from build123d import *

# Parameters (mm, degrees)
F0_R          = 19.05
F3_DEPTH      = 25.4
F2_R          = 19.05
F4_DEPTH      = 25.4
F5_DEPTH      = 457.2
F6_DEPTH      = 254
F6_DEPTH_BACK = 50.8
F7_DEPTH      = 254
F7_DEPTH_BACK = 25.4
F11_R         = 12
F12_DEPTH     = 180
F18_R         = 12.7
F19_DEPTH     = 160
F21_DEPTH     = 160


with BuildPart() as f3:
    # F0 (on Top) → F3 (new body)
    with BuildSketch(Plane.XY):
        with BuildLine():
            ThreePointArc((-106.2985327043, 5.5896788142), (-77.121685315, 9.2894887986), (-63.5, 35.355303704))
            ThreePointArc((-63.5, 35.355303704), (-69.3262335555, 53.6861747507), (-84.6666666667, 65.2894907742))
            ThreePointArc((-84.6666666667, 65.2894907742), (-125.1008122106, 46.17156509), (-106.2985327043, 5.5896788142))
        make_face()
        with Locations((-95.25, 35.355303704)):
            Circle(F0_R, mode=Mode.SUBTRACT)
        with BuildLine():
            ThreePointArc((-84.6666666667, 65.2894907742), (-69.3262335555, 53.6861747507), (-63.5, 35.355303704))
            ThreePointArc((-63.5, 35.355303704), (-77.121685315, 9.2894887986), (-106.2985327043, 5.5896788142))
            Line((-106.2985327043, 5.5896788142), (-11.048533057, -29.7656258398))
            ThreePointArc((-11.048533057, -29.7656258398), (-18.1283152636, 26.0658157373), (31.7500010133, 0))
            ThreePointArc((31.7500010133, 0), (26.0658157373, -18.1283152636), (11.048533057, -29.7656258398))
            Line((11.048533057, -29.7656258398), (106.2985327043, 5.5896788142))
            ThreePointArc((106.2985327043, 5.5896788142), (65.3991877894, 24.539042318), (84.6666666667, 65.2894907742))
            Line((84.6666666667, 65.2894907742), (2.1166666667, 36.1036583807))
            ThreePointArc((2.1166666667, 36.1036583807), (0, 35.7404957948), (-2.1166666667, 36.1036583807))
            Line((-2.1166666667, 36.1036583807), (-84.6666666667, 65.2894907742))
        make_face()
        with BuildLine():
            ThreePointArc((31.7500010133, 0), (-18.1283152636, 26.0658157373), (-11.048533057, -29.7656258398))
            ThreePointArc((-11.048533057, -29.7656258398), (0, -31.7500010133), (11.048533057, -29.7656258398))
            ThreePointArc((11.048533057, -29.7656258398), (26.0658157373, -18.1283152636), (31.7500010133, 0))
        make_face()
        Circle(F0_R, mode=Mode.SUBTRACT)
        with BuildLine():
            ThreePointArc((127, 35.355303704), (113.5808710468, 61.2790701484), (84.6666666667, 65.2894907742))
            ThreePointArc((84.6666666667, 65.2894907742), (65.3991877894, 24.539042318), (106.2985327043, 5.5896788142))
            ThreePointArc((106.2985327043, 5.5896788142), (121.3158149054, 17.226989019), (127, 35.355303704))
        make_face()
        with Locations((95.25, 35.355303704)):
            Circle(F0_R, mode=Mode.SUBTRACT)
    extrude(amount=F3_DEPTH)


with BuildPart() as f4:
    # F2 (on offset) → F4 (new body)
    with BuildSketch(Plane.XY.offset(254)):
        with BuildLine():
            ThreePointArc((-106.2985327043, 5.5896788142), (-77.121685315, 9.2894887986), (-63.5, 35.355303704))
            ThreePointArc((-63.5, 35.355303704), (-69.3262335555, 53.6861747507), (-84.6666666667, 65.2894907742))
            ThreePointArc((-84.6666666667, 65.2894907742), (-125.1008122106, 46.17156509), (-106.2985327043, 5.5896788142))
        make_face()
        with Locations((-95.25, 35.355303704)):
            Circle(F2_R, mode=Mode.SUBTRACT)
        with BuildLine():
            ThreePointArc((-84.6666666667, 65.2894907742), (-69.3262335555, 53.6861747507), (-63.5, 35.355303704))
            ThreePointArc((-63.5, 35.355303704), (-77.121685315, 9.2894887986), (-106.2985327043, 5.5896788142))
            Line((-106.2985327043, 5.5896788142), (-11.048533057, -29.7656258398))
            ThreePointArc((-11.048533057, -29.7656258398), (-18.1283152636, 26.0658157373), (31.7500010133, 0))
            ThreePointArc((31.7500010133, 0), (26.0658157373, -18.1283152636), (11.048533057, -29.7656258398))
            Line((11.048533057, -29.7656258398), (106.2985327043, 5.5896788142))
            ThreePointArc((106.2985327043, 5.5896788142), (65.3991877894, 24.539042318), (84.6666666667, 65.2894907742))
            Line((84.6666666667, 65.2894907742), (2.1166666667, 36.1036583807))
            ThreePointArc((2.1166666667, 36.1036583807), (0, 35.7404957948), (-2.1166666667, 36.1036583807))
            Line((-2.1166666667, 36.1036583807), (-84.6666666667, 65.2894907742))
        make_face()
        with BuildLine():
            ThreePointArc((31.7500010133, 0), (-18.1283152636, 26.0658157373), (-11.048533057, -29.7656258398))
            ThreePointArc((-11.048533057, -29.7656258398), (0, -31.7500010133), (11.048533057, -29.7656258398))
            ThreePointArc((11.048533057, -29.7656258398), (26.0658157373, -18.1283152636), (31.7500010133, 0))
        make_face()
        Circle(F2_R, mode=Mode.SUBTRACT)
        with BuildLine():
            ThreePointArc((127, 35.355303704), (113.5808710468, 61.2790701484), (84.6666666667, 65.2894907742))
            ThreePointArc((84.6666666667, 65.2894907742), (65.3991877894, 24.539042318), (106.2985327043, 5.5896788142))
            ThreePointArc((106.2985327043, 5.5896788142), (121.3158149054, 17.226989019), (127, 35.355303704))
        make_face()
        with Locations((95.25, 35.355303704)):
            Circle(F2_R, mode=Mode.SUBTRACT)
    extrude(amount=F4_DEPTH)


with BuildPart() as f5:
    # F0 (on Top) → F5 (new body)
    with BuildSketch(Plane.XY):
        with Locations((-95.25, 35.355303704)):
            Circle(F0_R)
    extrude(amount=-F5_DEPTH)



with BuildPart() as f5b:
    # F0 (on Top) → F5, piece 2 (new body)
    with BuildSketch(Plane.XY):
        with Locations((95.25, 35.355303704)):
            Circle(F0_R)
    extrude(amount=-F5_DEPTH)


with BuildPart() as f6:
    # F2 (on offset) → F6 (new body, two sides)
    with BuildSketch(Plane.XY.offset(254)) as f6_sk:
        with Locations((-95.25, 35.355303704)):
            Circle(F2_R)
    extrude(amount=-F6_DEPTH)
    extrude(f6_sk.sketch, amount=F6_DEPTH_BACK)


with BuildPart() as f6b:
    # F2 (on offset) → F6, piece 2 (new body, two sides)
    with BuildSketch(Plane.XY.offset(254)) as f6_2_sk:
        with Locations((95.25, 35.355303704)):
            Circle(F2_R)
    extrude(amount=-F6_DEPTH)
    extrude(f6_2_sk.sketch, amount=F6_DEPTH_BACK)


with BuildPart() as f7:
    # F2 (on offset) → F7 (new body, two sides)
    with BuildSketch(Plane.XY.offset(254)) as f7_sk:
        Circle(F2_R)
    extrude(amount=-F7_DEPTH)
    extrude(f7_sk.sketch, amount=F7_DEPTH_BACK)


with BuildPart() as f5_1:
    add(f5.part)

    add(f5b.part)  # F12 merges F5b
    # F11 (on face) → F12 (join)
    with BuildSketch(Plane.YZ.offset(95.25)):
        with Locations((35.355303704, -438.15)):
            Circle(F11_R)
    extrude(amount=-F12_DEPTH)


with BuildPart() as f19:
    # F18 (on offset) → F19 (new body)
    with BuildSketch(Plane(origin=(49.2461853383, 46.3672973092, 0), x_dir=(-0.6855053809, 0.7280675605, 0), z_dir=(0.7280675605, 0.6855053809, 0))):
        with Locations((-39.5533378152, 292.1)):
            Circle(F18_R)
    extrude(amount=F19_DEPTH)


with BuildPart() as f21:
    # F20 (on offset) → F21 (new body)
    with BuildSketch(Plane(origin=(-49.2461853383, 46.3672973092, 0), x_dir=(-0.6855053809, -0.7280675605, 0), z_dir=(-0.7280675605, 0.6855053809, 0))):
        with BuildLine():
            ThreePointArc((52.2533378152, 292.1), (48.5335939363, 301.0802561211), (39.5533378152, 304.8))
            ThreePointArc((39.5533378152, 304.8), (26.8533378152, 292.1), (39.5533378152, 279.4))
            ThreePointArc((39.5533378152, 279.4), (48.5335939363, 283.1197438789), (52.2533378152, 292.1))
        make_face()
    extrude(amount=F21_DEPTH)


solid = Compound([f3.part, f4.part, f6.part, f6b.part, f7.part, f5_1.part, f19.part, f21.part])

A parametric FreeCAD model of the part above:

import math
import FreeCAD as App
import Part
import Sketcher
Q = App.Units.Quantity

doc = App.newDocument("Part")
body = doc.addObject("PartDesign::Body", "Body")

# Sketch on XY plane
sketch1 = body.newObject("Sketcher::SketchObject", "Sketch")
sketch1.AttachmentSupport = (doc.getObject("XY_Plane"), [""])
sketch1.MapMode = "FlatFace"
sketch1.addGeometry([
    Part.ArcOfCircle(Part.Circle(App.Vector(-95.2, 35.4, 0), App.Vector(0, 0, 1), 31.8), math.radians(71), math.radians(250)),  # 0
    Part.LineSegment(App.Vector(-106.3, 5.6, 0), App.Vector(-11, -29.8, 0)),  # 1
    Part.ArcOfCircle(Part.Circle(App.Vector(0, 0, 0), App.Vector(0, 0, 1), 31.8), math.radians(-110), math.radians(-70)),  # 2
    Part.LineSegment(App.Vector(11, -29.8, 0), App.Vector(106.3, 5.6, 0)),  # 3
    Part.ArcOfCircle(Part.Circle(App.Vector(95.2, 35.4, 0), App.Vector(0, 0, 1), 31.8), math.radians(-70), math.radians(0)),  # 4
    Part.ArcOfCircle(Part.Circle(App.Vector(95.2, 35.4, 0), App.Vector(0, 0, 1), 31.8), math.radians(0), math.radians(109)),  # 5
    Part.LineSegment(App.Vector(84.7, 65.3, 0), App.Vector(2.1, 36.1, 0)),  # 6
    Part.ArcOfCircle(Part.Circle(App.Vector(0, 42.1, 0), App.Vector(0, 0, 1), 6.4), math.radians(-109), math.radians(-71)),  # 7
    Part.LineSegment(App.Vector(-2.1, 36.1, 0), App.Vector(-84.7, 65.3, 0)),  # 8
    Part.Circle(App.Vector(0, 0, 0), App.Vector(0, 0, 1), 19.1),  # 9
    Part.Circle(App.Vector(-95.2, 35.4, 0), App.Vector(0, 0, 1), 19.1),  # 10
    Part.Circle(App.Vector(95.2, 35.4, 0), App.Vector(0, 0, 1), 19.1),  # 11
], False)
sketch1.addConstraint([
    Sketcher.Constraint("Tangent", 0, 2, 1, 1),
    Sketcher.Constraint("Tangent", 1, 2, 2, 1),
    Sketcher.Constraint("Tangent", 2, 2, 3, 1),
    Sketcher.Constraint("Tangent", 3, 2, 4, 1),
    Sketcher.Constraint("Tangent", 4, 2, 5, 1),
    Sketcher.Constraint("Tangent", 5, 2, 6, 1),
    Sketcher.Constraint("Tangent", 6, 2, 7, 2),
    Sketcher.Constraint("Tangent", 7, 1, 8, 1),
    Sketcher.Constraint("Tangent", 8, 2, 0, 1),
    Sketcher.Constraint("Coincident", 2, 3, -1, 1),
    Sketcher.Constraint("Coincident", 9, 3, -1, 1),
    Sketcher.Constraint("Coincident", 10, 3, 0, 3),
    Sketcher.Constraint("Coincident", 11, 3, 4, 3),
    Sketcher.Constraint("Equal", 0, 2),
    Sketcher.Constraint("Equal", 2, 4),
    Sketcher.Constraint("Equal", 4, 5),
    Sketcher.Constraint("Equal", 9, 10),
    Sketcher.Constraint("Equal", 10, 11),
    Sketcher.Constraint("Symmetric", 0, 3, 4, 3, -2),
    Sketcher.Constraint("PointOnObject", 7, 3, -2),
    Sketcher.Constraint("Horizontal", 11, 3, 4, 2),
    Sketcher.Constraint("Diameter", 9, Q("1.5 in")),
    Sketcher.Constraint("Radius", 0, Q("1.25 in")),
    Sketcher.Constraint("Radius", 7, Q("0.25 in")),
    Sketcher.Constraint("Distance", 1, Q("4 in")),
    Sketcher.Constraint("DistanceX", -1, 1, 4, 2, Q("5 in")),
    Sketcher.Constraint("DistanceX", 8, 2, 7, 1, Q("3.25 in")),
])
pad1 = body.newObject("PartDesign::Pad", "Pad")
pad1.Profile = sketch1
pad1.Length = Q("1 in")
body2 = doc.addObject("PartDesign::Body", "Body001")

# Sketch on XY plane
sketch2 = body2.newObject("Sketcher::SketchObject", "Sketch001")
sketch2.AttachmentSupport = (doc.getObject("XY_Plane001"), [""])
sketch2.MapMode = "FlatFace"
sketch2.AttachmentOffset = App.Placement(App.Vector(0, 0, 10 * 25.4), App.Rotation())
sketch2.addGeometry([
    Part.ArcOfCircle(Part.Circle(App.Vector(-95.2, 35.4, 0), App.Vector(0, 0, 1), 31.8), math.radians(71), math.radians(250)),  # 0
    Part.LineSegment(App.Vector(-106.3, 5.6, 0), App.Vector(-11, -29.8, 0)),  # 1
    Part.ArcOfCircle(Part.Circle(App.Vector(0, 0, 0), App.Vector(0, 0, 1), 31.8), math.radians(-110), math.radians(-70)),  # 2
    Part.LineSegment(App.Vector(11, -29.8, 0), App.Vector(106.3, 5.6, 0)),  # 3
    Part.ArcOfCircle(Part.Circle(App.Vector(95.2, 35.4, 0), App.Vector(0, 0, 1), 31.8), math.radians(-70), math.radians(0)),  # 4
    Part.ArcOfCircle(Part.Circle(App.Vector(95.2, 35.4, 0), App.Vector(0, 0, 1), 31.8), math.radians(0), math.radians(109)),  # 5
    Part.LineSegment(App.Vector(84.7, 65.3, 0), App.Vector(2.1, 36.1, 0)),  # 6
    Part.ArcOfCircle(Part.Circle(App.Vector(0, 42.1, 0), App.Vector(0, 0, 1), 6.4), math.radians(-109), math.radians(-71)),  # 7
    Part.LineSegment(App.Vector(-2.1, 36.1, 0), App.Vector(-84.7, 65.3, 0)),  # 8
    Part.Circle(App.Vector(0, 0, 0), App.Vector(0, 0, 1), 19.1),  # 9
    Part.Circle(App.Vector(-95.2, 35.4, 0), App.Vector(0, 0, 1), 19.1),  # 10
    Part.Circle(App.Vector(95.2, 35.4, 0), App.Vector(0, 0, 1), 19.1),  # 11
], False)
sketch2.addConstraint([
    Sketcher.Constraint("Tangent", 0, 2, 1, 1),
    Sketcher.Constraint("Tangent", 1, 2, 2, 1),
    Sketcher.Constraint("Tangent", 2, 2, 3, 1),
    Sketcher.Constraint("Tangent", 3, 2, 4, 1),
    Sketcher.Constraint("Tangent", 4, 2, 5, 1),
    Sketcher.Constraint("Tangent", 5, 2, 6, 1),
    Sketcher.Constraint("Tangent", 6, 2, 7, 2),
    Sketcher.Constraint("Tangent", 7, 1, 8, 1),
    Sketcher.Constraint("Tangent", 8, 2, 0, 1),
    Sketcher.Constraint("Coincident", 2, 3, -1, 1),
    Sketcher.Constraint("Coincident", 9, 3, -1, 1),
    Sketcher.Constraint("Coincident", 10, 3, 0, 3),
    Sketcher.Constraint("Coincident", 11, 3, 4, 3),
    Sketcher.Constraint("Equal", 0, 2),
    Sketcher.Constraint("Equal", 2, 4),
    Sketcher.Constraint("Equal", 4, 5),
    Sketcher.Constraint("Equal", 9, 10),
    Sketcher.Constraint("Equal", 10, 11),
    Sketcher.Constraint("Symmetric", 0, 3, 4, 3, -2),
    Sketcher.Constraint("PointOnObject", 7, 3, -2),
    Sketcher.Constraint("Horizontal", 11, 3, 4, 2),
    Sketcher.Constraint("Diameter", 9, Q("1.5 in")),
    Sketcher.Constraint("Radius", 0, Q("1.25 in")),
    Sketcher.Constraint("Radius", 7, Q("0.25 in")),
    Sketcher.Constraint("Distance", 1, Q("4 in")),
    Sketcher.Constraint("DistanceX", -1, 1, 4, 2, Q("5 in")),
    Sketcher.Constraint("DistanceX", 8, 2, 7, 1, Q("3.25 in")),
])
pad2 = body2.newObject("PartDesign::Pad", "Pad001")
pad2.Profile = sketch2
pad2.Length = Q("1 in")
body3 = doc.addObject("PartDesign::Body", "Body002")

# Sketch on XY plane
sketch3 = body3.newObject("Sketcher::SketchObject", "Sketch002")
sketch3.AttachmentSupport = (doc.getObject("XY_Plane002"), [""])
sketch3.MapMode = "FlatFace"
sketch3.addGeometry(Part.Circle(App.Vector(-95, 35, 0), App.Vector(0, 0, 1), 19), False)
sketch3.addConstraint([
    Sketcher.Constraint("Diameter", 0, Q("1.5 in")),
    Sketcher.Constraint("DistanceX", 0, 3, -1, 1, Q("3.75 in")),
    Sketcher.Constraint("DistanceY", -1, 1, 0, 3, Q("35.355304 mm")),
])
pad3 = body3.newObject("PartDesign::Pad", "Pad002")
pad3.Profile = sketch3
pad3.Length = Q("18 in")
pad3.Reversed = True
body4 = doc.addObject("PartDesign::Body", "Body003")

# Sketch on XY plane
sketch4 = body4.newObject("Sketcher::SketchObject", "Sketch003")
sketch4.AttachmentSupport = (doc.getObject("XY_Plane003"), [""])
sketch4.MapMode = "FlatFace"
sketch4.addGeometry(Part.Circle(App.Vector(95, 35, 0), App.Vector(0, 0, 1), 19), False)
sketch4.addConstraint([
    Sketcher.Constraint("Diameter", 0, Q("1.5 in")),
    Sketcher.Constraint("DistanceX", -1, 1, 0, 3, Q("3.75 in")),
    Sketcher.Constraint("DistanceY", -1, 1, 0, 3, Q("35.355304 mm")),
])
pad4 = body4.newObject("PartDesign::Pad", "Pad003")
pad4.Profile = sketch4
pad4.Length = Q("18 in")
pad4.Reversed = True
body5 = doc.addObject("PartDesign::Body", "Body004")

# Sketch on XY plane
sketch5 = body5.newObject("Sketcher::SketchObject", "Sketch004")
sketch5.AttachmentSupport = (doc.getObject("XY_Plane004"), [""])
sketch5.MapMode = "FlatFace"
sketch5.AttachmentOffset = App.Placement(App.Vector(0, 0, 10 * 25.4), App.Rotation())
sketch5.addGeometry(Part.Circle(App.Vector(-95, 35, 0), App.Vector(0, 0, 1), 19), False)
sketch5.addConstraint([
    Sketcher.Constraint("Diameter", 0, Q("1.5 in")),
    Sketcher.Constraint("DistanceX", 0, 3, -1, 1, Q("3.75 in")),
    Sketcher.Constraint("DistanceY", -1, 1, 0, 3, Q("35.355304 mm")),
])
pad5 = body5.newObject("PartDesign::Pad", "Pad004")
pad5.Profile = sketch5
pad5.Type = "TwoLengths"
pad5.Length = Q("10 in")
pad5.Length2 = Q("2 in")
pad5.Reversed = True
body6 = doc.addObject("PartDesign::Body", "Body005")

# Sketch on XY plane
sketch6 = body6.newObject("Sketcher::SketchObject", "Sketch005")
sketch6.AttachmentSupport = (doc.getObject("XY_Plane005"), [""])
sketch6.MapMode = "FlatFace"
sketch6.AttachmentOffset = App.Placement(App.Vector(0, 0, 10 * 25.4), App.Rotation())
sketch6.addGeometry(Part.Circle(App.Vector(95, 35, 0), App.Vector(0, 0, 1), 19), False)
sketch6.addConstraint([
    Sketcher.Constraint("Diameter", 0, Q("1.5 in")),
    Sketcher.Constraint("DistanceX", -1, 1, 0, 3, Q("3.75 in")),
    Sketcher.Constraint("DistanceY", -1, 1, 0, 3, Q("35.355304 mm")),
])
pad6 = body6.newObject("PartDesign::Pad", "Pad005")
pad6.Profile = sketch6
pad6.Type = "TwoLengths"
pad6.Length = Q("10 in")
pad6.Length2 = Q("2 in")
pad6.Reversed = True
body7 = doc.addObject("PartDesign::Body", "Body006")

# Sketch on XY plane
sketch7 = body7.newObject("Sketcher::SketchObject", "Sketch006")
sketch7.AttachmentSupport = (doc.getObject("XY_Plane006"), [""])
sketch7.MapMode = "FlatFace"
sketch7.AttachmentOffset = App.Placement(App.Vector(0, 0, 10 * 25.4), App.Rotation())
sketch7.addGeometry(Part.Circle(App.Vector(0, 0, 0), App.Vector(0, 0, 1), 19), False)
sketch7.addConstraint([
    Sketcher.Constraint("Coincident", 0, 3, -1, 1),
    Sketcher.Constraint("Diameter", 0, Q("1.5 in")),
])
pad7 = body7.newObject("PartDesign::Pad", "Pad006")
pad7.Profile = sketch7
pad7.Type = "TwoLengths"
pad7.Length = Q("10 in")
pad7.Length2 = Q("1 in")
pad7.Reversed = True
body3.AllowCompound = True
doc.recompute()

boolean = body3.newObject("PartDesign::Boolean", "Boolean")
boolean.Type = "Fuse"
boolean.addObjects([body4])

# Sketch on YZ plane
sketch8 = body3.newObject("Sketcher::SketchObject", "Sketch007")
sketch8.AttachmentSupport = (doc.getObject("YZ_Plane002"), [""])
sketch8.MapMode = "FlatFace"
sketch8.AttachmentOffset = App.Placement(App.Vector(0, 0, 3.75 * 25.4), App.Rotation())
sketch8.addGeometry(Part.Circle(App.Vector(35, -438, 0), App.Vector(0, 0, 1), 12), False)
sketch8.addConstraint([
    Sketcher.Constraint("Diameter", 0, Q("24 mm")),
    Sketcher.Constraint("DistanceY", 0, 3, -1, 1, Q("17.25 in")),
    Sketcher.Constraint("DistanceX", -1, 1, 0, 3, Q("35.355304 mm")),
])
pad8 = body3.newObject("PartDesign::Pad", "Pad007")
pad8.Profile = sketch8
pad8.Length = 180
pad8.Reversed = True
body8 = doc.addObject("PartDesign::Body", "Body007")

# Sketch on an angled plane
sketch9 = body8.newObject("Sketcher::SketchObject", "Sketch008")
sketch9.Placement = App.Placement(App.Vector(49.246185, 46.367297, 0), App.Rotation(App.Vector(-0.685505381, 0.728067561, 0), App.Vector(0, 0, 1.000000001), App.Vector(0.728067561, 0.685505381, 0), "ZXY"))
sketch9.addGeometry(Part.Circle(App.Vector(-40, 292, 0), App.Vector(0, 0, 1), 13), False)
sketch9.addConstraint([
    Sketcher.Constraint("Diameter", 0, Q("1 in")),
    Sketcher.Constraint("DistanceY", -1, 1, 0, 3, Q("11.5 in")),
    Sketcher.Constraint("DistanceX", 0, 3, -1, 1, Q("39.553338 mm")),
])
pad9 = body8.newObject("PartDesign::Pad", "Pad008")
pad9.Profile = sketch9
pad9.Length = 160
body9 = doc.addObject("PartDesign::Body", "Body008")

# Sketch on an angled plane
sketch10 = body9.newObject("Sketcher::SketchObject", "Sketch009")
sketch10.Placement = App.Placement(App.Vector(-49.246185, 46.367297, 0), App.Rotation(App.Vector(-0.685505381, -0.728067561, 0), App.Vector(0, 0, 1.000000001), App.Vector(-0.728067561, 0.685505381, 0), "ZXY"))
sketch10.addGeometry([
    Part.ArcOfCircle(Part.Circle(App.Vector(40, 292, 0), App.Vector(0, 0, 1), 13), math.radians(0), math.radians(90)),
    Part.ArcOfCircle(Part.Circle(App.Vector(40, 292, 0), App.Vector(0, 0, 1), 13), math.radians(90), math.radians(270)),
    Part.ArcOfCircle(Part.Circle(App.Vector(40, 292, 0), App.Vector(0, 0, 1), 13), math.radians(-90), math.radians(0)),
], False)
sketch10.addConstraint([
    Sketcher.Constraint("Tangent", 0, 2, 1, 1),
    Sketcher.Constraint("Tangent", 1, 2, 2, 1),
    Sketcher.Constraint("Tangent", 2, 2, 0, 1),
    Sketcher.Constraint("Horizontal", 1, 3, 2, 2),
    Sketcher.Constraint("Vertical", 2, 3, 0, 2),
    Sketcher.Constraint("Vertical", 0, 2, 1, 2),
    Sketcher.Constraint("Radius", 0, Q("0.5 in")),
    Sketcher.Constraint("DistanceY", -1, 1, 0, 2, Q("12 in")),
    Sketcher.Constraint("DistanceX", -1, 1, 0, 3, Q("39.553338 mm")),
])
pad10 = body9.newObject("PartDesign::Pad", "Pad009")
pad10.Profile = sketch10
pad10.Length = 160

doc.recompute()
